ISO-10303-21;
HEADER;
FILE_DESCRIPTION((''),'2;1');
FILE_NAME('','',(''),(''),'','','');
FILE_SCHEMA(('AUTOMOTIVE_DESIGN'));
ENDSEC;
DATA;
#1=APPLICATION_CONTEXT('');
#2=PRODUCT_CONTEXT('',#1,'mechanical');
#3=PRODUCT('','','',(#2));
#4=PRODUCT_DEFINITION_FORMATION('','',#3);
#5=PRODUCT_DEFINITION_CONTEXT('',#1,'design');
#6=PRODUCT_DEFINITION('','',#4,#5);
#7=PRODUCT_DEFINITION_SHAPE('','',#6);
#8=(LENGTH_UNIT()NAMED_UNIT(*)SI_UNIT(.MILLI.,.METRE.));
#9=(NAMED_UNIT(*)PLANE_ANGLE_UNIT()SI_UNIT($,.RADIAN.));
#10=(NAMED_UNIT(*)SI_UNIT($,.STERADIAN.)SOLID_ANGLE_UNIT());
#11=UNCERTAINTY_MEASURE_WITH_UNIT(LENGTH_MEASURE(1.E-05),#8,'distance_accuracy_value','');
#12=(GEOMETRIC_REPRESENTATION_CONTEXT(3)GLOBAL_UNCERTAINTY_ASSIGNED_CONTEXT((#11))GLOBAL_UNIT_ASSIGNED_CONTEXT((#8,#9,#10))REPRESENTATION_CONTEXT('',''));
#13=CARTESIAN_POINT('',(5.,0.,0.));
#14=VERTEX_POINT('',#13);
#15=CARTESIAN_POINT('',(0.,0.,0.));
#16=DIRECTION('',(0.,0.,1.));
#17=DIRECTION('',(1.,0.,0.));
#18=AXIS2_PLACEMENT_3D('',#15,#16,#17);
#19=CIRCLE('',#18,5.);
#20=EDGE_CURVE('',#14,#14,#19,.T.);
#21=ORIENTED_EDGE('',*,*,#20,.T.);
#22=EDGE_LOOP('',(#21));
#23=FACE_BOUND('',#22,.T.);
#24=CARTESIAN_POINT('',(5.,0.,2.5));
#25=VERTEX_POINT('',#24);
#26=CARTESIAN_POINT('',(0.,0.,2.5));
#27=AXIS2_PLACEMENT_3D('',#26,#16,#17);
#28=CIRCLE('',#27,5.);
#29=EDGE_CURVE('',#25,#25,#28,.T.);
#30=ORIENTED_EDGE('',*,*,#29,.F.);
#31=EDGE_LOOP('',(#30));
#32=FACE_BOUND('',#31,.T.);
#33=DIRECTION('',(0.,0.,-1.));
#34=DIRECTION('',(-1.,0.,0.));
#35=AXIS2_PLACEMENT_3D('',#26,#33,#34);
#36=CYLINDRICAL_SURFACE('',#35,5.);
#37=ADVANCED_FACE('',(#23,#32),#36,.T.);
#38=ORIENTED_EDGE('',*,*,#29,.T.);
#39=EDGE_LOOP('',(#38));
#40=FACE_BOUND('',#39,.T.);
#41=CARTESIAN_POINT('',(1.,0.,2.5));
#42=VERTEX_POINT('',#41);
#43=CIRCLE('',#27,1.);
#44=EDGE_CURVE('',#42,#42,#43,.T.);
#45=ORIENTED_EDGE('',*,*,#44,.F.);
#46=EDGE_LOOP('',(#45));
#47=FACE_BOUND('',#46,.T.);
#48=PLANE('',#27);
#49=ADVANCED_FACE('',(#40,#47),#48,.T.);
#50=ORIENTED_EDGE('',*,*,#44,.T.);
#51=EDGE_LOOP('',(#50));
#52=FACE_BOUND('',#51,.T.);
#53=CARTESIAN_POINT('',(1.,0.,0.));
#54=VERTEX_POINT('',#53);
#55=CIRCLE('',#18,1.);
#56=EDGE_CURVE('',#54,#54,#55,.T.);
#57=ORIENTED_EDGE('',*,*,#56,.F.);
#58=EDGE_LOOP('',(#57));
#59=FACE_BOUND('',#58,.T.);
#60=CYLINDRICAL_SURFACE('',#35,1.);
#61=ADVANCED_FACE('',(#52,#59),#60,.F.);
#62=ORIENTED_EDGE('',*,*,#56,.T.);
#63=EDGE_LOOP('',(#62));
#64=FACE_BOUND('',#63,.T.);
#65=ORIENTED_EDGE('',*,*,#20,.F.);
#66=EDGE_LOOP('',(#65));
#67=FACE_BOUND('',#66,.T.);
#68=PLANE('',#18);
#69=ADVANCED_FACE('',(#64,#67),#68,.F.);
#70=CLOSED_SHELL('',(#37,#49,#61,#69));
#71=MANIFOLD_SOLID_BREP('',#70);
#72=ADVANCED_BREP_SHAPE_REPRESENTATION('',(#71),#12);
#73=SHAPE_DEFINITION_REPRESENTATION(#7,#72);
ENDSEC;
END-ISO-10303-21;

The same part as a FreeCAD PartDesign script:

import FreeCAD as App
import Part
import Sketcher

V = App.Vector
Q = App.Units.Quantity

doc = App.newDocument("Part")
body = doc.addObject("PartDesign::Body", "Body")

# Sketch on XY plane
sketch1 = body.newObject("Sketcher::SketchObject", "Sketch")
sketch1.AttachmentSupport = (doc.getObject("XY_Plane"), [""])
sketch1.MapMode = "FlatFace"
sketch1.addGeometry(Part.Circle(V(0, 0, 0), V(0, 0, 1), 5), False)
sketch1.addGeometry(Part.Circle(V(0, 0, 0), V(0, 0, 1), 1), False)
sketch1.addConstraint(Sketcher.Constraint("Coincident", 0, 3, -1, 1))
sketch1.addConstraint(Sketcher.Constraint("Coincident", 1, 3, -1, 1))
sketch1.addConstraint(Sketcher.Constraint("Diameter", 0, Q("10 mm")))
sketch1.addConstraint(Sketcher.Constraint("Diameter", 1, Q("2 mm")))
pad1 = body.newObject("PartDesign::Pad", "Pad")
pad1.Profile = sketch1
pad1.Length = 2.5

doc.recompute()
